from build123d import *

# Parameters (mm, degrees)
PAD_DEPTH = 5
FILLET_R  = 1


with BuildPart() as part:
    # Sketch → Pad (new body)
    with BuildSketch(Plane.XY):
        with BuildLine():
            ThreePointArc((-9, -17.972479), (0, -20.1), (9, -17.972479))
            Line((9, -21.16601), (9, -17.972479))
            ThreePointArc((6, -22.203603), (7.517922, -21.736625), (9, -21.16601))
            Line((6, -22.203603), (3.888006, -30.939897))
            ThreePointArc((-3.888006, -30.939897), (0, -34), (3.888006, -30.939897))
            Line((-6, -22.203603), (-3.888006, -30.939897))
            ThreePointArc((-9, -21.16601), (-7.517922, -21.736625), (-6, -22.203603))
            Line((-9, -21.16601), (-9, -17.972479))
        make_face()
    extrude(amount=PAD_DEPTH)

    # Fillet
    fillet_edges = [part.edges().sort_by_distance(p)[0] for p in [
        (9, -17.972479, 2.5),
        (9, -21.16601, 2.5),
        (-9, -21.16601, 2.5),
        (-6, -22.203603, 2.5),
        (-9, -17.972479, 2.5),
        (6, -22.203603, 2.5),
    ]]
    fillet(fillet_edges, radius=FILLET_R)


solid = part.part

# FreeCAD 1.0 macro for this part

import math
import FreeCAD as App
import Part
import Sketcher

V = App.Vector
Q = App.Units.Quantity


def edges_at(feature, points):
    """Names of the edges that pass closest to the given points."""
    edges = feature.Shape.Edges
    near = lambda p: min(range(len(edges)), key=lambda i: edges[i].distToShape(Part.Vertex(*p))[0])
    return sorted({f"Edge{near(p) + 1}" for p in points})

doc = App.newDocument("Part")
body = doc.addObject("PartDesign::Body", "Body")

# Sketch on XY plane
sketch1 = body.newObject("Sketcher::SketchObject", "Sketch")
sketch1.AttachmentSupport = (doc.getObject("XY_Plane"), [""])
sketch1.MapMode = "FlatFace"
sketch1.addGeometry(Part.ArcOfCircle(Part.Circle(V(0, 0, 0), V(0, 0, 1), 20.1), math.radians(-116.600134), math.radians(-63.399866)), False)
sketch1.addGeometry(Part.LineSegment(V(-9, -17.972479, 0), V(-9, -21.16601, 0)), False)
sketch1.addGeometry(Part.ArcOfCircle(Part.Circle(V(-0.000103, -0.000301, 0), V(0, 0, 1), 22.999683), math.radians(-113.035742), math.radians(-105.121614)), False)
sketch1.addGeometry(Part.LineSegment(V(-6, -22.203603, 0), V(-3.888006, -30.939897, 0)), False)
sketch1.addGeometry(Part.ArcOfCircle(Part.Circle(V(0, -30, 0), V(0, 0, 1), 4), math.radians(-166.409901), math.radians(-13.590099)), False)
sketch1.addGeometry(Part.LineSegment(V(3.888006, -30.939897, 0), V(6, -22.203603, 0)), False)
sketch1.addGeometry(Part.ArcOfCircle(Part.Circle(V(0.000103, -0.000301, 0), V(0, 0, 1), 22.999683), math.radians(-74.878386), math.radians(-66.964258)), False)
sketch1.addGeometry(Part.LineSegment(V(9, -21.16601, 0), V(9, -17.972479, 0)), False)
sketch1.addConstraint(Sketcher.Constraint("Coincident", 0, 1, 1, 1))
sketch1.addConstraint(Sketcher.Constraint("Coincident", 1, 2, 2, 1))
sketch1.addConstraint(Sketcher.Constraint("Coincident", 2, 2, 3, 1))
sketch1.addConstraint(Sketcher.Constraint("Coincident", 3, 2, 4, 1))
sketch1.addConstraint(Sketcher.Constraint("Coincident", 4, 2, 5, 1))
sketch1.addConstraint(Sketcher.Constraint("Coincident", 5, 2, 6, 1))
sketch1.addConstraint(Sketcher.Constraint("Coincident", 6, 2, 7, 1))
sketch1.addConstraint(Sketcher.Constraint("Coincident", 7, 2, 0, 2))
sketch1.addConstraint(Sketcher.Constraint("Vertical", 1))
sketch1.addConstraint(Sketcher.Constraint("Vertical", 7))
sketch1.addConstraint(Sketcher.Constraint("Coincident", 0, 3, -1, 1))
sketch1.addConstraint(Sketcher.Constraint("Equal", 2, 6))
sketch1.addConstraint(Sketcher.Constraint("Symmetric", 2, 3, 6, 3, -2))
sketch1.addConstraint(Sketcher.Constraint("Symmetric", 3, 2, 4, 2, -2))
sketch1.addConstraint(Sketcher.Constraint("Horizontal", 2, 2, 5, 2))
sketch1.addConstraint(Sketcher.Constraint("Horizontal", 1, 2, 6, 2))
sketch1.addConstraint(Sketcher.Constraint("Radius", 4, Q("4 mm")))
sketch1.addConstraint(Sketcher.Constraint("Radius", 0, Q("20.1 mm")))
sketch1.addConstraint(Sketcher.Constraint("DistanceY", 4, 3, -1, 1, Q("30 mm")))
sketch1.addConstraint(Sketcher.Constraint("DistanceX", 0, 1, -1, 1, Q("9 mm")))
sketch1.addConstraint(Sketcher.Constraint("DistanceX", 2, 2, -1, 1, Q("6 mm")))
sketch1.addConstraint(Sketcher.Constraint("Radius", 2, Q("22.999683 mm")))
sketch1.addConstraint(Sketcher.Constraint("DistanceY", 1, 2, 1, 1, Q("3.193531 mm")))
sketch1.addConstraint(Sketcher.Constraint("DistanceY", 2, 3, -1, 1, Q("0.000301 mm")))
sketch1.addConstraint(Sketcher.Constraint("DistanceY", 3, 2, 0, 1, Q("12.967418 mm")))
pad1 = body.newObject("PartDesign::Pad", "Pad")
pad1.Profile = sketch1
pad1.Length = 5
doc.recompute()

fillet = body.newObject("PartDesign::Fillet", "Fillet")
fillet.Base = (pad1, edges_at(pad1, [
    (9, -17.972, 2.5),
    (9, -21.166, 2.5),
    (-9, -21.166, 2.5),
    (-6, -22.204, 2.5),
    (-9, -17.972, 2.5),
    (6, -22.204, 2.5),
]))
fillet.Radius = 1

doc.recompute()
